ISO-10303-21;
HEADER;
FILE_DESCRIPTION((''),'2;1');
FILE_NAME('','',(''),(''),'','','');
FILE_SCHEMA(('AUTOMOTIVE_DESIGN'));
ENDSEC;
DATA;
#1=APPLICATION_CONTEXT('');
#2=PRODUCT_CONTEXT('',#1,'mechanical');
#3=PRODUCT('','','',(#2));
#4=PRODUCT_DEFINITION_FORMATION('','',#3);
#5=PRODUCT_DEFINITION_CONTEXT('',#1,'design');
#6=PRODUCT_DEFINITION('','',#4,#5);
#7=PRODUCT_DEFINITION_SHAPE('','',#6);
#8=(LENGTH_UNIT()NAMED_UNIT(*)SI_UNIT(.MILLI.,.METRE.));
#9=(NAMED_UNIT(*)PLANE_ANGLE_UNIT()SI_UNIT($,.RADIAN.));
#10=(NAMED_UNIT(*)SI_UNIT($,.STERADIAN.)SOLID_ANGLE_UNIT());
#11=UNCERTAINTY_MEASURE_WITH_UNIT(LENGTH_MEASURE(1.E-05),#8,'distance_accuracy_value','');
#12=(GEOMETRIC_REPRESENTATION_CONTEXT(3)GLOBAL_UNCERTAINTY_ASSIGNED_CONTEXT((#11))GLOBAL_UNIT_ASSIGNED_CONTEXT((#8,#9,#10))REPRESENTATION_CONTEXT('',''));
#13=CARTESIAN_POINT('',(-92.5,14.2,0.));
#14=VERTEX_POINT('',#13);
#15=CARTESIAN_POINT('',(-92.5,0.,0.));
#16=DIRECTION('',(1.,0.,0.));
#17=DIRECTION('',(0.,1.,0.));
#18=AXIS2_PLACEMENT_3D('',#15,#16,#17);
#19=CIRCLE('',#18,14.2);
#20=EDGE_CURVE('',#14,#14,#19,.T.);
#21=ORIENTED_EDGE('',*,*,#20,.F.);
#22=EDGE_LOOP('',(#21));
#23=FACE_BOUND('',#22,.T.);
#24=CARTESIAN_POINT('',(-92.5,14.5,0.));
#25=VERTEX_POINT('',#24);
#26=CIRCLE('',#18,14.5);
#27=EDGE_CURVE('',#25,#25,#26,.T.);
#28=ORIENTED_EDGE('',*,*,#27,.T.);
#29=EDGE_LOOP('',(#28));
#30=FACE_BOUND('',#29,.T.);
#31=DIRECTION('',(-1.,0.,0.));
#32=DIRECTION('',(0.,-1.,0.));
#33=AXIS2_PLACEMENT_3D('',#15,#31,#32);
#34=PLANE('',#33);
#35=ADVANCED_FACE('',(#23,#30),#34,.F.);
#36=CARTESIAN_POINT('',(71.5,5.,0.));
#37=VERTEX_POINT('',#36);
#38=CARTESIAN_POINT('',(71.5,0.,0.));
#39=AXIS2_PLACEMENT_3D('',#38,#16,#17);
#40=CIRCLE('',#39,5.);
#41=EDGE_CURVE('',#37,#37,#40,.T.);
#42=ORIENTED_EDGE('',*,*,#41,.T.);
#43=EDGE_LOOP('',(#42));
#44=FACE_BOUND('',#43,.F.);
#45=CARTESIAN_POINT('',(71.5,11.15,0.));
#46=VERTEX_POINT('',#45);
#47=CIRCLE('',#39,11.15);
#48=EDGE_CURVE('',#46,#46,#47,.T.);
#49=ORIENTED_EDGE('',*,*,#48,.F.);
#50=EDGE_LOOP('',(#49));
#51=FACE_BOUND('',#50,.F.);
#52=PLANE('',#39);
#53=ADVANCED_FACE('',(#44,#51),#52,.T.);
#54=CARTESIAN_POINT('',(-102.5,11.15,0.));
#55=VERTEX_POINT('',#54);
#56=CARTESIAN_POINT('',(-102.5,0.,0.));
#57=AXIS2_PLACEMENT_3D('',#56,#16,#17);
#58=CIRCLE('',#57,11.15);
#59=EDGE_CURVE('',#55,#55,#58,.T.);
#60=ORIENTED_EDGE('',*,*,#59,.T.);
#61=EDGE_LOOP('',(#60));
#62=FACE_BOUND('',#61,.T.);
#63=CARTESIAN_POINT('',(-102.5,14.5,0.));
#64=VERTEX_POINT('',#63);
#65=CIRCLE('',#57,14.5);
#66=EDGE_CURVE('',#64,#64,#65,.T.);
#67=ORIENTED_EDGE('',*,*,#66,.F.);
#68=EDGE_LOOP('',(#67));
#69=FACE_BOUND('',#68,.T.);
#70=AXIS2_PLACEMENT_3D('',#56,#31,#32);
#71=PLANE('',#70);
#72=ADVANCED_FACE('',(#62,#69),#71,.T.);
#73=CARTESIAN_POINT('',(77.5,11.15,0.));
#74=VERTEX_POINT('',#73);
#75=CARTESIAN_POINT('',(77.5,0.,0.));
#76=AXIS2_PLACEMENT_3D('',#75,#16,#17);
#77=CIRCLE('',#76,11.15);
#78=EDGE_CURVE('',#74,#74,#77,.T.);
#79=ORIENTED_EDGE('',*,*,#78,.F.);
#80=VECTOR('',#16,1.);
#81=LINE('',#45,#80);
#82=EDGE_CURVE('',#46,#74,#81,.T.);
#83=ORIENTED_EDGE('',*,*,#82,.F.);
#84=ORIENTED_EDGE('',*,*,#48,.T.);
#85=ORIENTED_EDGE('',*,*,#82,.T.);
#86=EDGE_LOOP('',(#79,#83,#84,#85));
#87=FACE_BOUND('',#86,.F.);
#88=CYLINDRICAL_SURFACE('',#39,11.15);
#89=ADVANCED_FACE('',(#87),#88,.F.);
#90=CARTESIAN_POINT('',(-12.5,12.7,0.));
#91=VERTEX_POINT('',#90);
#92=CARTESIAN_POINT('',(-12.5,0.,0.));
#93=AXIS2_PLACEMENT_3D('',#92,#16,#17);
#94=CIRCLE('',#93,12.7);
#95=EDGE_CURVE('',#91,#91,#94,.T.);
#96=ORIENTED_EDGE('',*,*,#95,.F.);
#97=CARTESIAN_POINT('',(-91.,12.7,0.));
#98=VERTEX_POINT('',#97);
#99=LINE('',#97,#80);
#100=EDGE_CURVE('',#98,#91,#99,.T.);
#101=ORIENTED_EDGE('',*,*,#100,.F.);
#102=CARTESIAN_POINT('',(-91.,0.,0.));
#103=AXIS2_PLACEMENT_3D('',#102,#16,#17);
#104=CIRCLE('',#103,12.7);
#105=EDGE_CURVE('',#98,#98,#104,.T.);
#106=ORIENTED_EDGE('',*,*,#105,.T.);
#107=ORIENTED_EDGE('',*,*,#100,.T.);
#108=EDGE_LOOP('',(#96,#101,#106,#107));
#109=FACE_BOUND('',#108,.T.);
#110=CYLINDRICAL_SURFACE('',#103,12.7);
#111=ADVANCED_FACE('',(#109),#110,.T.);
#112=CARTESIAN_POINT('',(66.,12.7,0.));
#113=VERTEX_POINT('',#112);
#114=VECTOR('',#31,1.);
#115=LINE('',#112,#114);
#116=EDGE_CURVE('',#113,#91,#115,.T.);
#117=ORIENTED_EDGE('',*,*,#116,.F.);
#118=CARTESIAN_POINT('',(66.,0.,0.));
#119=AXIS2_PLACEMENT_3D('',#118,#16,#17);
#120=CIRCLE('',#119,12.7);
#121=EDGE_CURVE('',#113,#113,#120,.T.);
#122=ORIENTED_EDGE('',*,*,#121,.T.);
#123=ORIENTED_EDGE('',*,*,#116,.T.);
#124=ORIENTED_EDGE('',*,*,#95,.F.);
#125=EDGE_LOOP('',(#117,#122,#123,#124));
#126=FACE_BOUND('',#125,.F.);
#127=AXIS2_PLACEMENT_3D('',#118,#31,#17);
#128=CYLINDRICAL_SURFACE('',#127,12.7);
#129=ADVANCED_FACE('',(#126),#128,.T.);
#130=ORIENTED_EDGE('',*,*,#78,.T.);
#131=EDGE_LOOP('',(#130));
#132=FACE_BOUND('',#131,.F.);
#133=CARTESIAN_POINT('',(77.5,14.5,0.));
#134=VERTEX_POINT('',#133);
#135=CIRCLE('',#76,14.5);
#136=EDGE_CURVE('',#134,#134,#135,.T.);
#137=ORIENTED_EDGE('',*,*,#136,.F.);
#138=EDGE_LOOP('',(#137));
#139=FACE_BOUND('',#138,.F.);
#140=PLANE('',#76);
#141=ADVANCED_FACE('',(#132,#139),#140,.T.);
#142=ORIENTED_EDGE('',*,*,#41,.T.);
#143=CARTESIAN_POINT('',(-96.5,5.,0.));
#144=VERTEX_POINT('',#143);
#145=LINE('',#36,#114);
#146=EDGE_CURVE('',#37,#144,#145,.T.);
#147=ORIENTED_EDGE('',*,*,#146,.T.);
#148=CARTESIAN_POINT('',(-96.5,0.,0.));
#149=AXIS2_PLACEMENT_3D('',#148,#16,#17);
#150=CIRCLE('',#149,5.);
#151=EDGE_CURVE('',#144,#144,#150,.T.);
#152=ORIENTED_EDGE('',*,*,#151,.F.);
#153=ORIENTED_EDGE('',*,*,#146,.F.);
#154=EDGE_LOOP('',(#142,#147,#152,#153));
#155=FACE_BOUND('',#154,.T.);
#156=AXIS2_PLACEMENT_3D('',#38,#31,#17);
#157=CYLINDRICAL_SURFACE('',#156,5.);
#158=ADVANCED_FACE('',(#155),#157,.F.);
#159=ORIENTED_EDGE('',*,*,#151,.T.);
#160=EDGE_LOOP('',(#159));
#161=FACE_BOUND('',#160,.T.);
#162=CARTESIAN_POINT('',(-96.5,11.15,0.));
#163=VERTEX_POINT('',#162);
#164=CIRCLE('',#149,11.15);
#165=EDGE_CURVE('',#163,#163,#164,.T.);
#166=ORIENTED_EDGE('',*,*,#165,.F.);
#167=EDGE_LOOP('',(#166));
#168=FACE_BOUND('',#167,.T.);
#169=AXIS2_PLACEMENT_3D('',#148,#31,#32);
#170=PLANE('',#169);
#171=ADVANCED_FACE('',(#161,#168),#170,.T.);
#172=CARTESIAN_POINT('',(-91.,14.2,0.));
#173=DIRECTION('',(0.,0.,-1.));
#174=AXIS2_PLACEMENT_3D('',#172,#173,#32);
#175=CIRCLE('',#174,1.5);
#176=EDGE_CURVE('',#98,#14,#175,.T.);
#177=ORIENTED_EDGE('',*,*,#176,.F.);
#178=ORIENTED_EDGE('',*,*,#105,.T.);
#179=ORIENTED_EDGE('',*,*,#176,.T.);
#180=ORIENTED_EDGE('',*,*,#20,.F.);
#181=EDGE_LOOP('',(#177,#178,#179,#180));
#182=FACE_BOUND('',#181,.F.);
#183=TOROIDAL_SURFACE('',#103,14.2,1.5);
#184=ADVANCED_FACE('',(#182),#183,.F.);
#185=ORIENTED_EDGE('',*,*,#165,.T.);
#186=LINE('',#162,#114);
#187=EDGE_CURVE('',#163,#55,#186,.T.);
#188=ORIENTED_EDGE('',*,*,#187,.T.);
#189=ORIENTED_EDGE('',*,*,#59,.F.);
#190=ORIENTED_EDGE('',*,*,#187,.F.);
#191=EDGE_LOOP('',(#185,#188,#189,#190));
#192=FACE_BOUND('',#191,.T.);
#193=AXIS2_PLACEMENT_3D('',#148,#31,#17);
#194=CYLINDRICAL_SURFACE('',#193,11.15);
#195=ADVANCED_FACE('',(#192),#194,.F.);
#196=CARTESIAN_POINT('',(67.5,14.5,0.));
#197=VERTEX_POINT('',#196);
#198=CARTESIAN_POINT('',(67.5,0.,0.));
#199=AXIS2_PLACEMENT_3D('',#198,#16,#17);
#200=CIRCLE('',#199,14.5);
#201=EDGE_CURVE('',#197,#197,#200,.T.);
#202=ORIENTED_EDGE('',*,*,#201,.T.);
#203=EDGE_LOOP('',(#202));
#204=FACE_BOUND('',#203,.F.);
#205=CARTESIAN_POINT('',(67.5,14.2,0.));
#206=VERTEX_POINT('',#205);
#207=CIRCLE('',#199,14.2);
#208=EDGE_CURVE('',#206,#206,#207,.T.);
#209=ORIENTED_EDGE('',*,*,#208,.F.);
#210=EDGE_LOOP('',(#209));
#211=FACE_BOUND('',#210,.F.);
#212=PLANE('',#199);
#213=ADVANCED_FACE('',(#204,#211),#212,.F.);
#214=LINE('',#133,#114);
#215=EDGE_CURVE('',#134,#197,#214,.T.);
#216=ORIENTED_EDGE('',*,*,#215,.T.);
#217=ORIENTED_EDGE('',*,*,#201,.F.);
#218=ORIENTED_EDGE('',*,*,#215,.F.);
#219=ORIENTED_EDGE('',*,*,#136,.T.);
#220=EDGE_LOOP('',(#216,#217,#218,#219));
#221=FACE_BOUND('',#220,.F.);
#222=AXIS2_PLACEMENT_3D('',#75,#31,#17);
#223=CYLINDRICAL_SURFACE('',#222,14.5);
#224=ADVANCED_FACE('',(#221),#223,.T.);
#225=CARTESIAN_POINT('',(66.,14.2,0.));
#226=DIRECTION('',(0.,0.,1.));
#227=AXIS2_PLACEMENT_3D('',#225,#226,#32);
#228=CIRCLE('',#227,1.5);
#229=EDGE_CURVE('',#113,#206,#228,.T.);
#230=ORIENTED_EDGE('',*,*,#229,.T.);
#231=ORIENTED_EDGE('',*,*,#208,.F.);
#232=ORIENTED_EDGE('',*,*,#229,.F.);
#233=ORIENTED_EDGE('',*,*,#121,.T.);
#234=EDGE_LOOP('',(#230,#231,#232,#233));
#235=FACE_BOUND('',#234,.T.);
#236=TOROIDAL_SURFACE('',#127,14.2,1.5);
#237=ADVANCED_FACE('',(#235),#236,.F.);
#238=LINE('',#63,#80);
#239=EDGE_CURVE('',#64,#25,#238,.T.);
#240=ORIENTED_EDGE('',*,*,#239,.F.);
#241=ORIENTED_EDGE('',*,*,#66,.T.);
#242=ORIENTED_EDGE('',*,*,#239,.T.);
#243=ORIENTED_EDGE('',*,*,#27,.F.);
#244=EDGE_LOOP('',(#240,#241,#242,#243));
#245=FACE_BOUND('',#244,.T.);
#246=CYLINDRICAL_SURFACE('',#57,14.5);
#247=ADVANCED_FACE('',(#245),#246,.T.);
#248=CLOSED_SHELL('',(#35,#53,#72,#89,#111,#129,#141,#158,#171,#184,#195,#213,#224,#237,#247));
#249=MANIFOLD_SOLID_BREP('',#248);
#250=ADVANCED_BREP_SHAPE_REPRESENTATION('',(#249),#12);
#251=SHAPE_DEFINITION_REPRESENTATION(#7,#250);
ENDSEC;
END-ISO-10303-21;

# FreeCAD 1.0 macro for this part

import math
import FreeCAD as App
import Part
import Sketcher
Q = App.Units.Quantity

doc = App.newDocument("Part")
body = doc.addObject("PartDesign::Body", "Body")

# Sketch on XY plane
sketch1 = doc.addObject("Sketcher::SketchObject", "Sketch")
body.addObject(sketch1)
sketch1.AttachmentSupport = (doc.XY_Plane, [""])
sketch1.MapMode = "FlatFace"
sketch1.addGeometry([
    Part.LineSegment(App.Vector(-12.5, 5, 0), App.Vector(71.5, 5, 0)),  # 0
    Part.LineSegment(App.Vector(71.5, 5, 0), App.Vector(71.5, 11.15, 0)),  # 1
    Part.LineSegment(App.Vector(71.5, 11.15, 0), App.Vector(77.5, 11.15, 0)),  # 2
    Part.LineSegment(App.Vector(77.5, 11.15, 0), App.Vector(77.5, 14.5, 0)),  # 3
    Part.LineSegment(App.Vector(77.5, 14.5, 0), App.Vector(67.5, 14.5, 0)),  # 4
    Part.LineSegment(App.Vector(67.5, 14.5, 0), App.Vector(67.5, 14.2, 0)),  # 5
    Part.ArcOfCircle(Part.Circle(App.Vector(66, 14.2, 0), App.Vector(0, 0, 1), 1.5), math.radians(-90), math.radians(0)),  # 6
    Part.LineSegment(App.Vector(66, 12.7, 0), App.Vector(-12.5, 12.7, 0)),  # 7
    Part.LineSegment(App.Vector(-12.5, 12.7, 0), App.Vector(-12.5, 5, 0)),  # 8
], False)
sketch1.addConstraint([
    Sketcher.Constraint("Coincident", 0, 2, 1, 1),
    Sketcher.Constraint("Coincident", 1, 2, 2, 1),
    Sketcher.Constraint("Coincident", 2, 2, 3, 1),
    Sketcher.Constraint("Coincident", 3, 2, 4, 1),
    Sketcher.Constraint("Coincident", 4, 2, 5, 1),
    Sketcher.Constraint("Tangent", 5, 2, 6, 2),
    Sketcher.Constraint("Tangent", 6, 1, 7, 1),
    Sketcher.Constraint("Coincident", 7, 2, 8, 1),
    Sketcher.Constraint("Coincident", 8, 2, 0, 1),
    Sketcher.Constraint("Horizontal", 0),
    Sketcher.Constraint("Vertical", 1),
    Sketcher.Constraint("Horizontal", 2),
    Sketcher.Constraint("Vertical", 3),
    Sketcher.Constraint("Horizontal", 4),
    Sketcher.Constraint("Vertical", 5),
    Sketcher.Constraint("Horizontal", 7),
    Sketcher.Constraint("Vertical", 8),
    Sketcher.Constraint("Radius", 6, Q("1.5 mm")),
    Sketcher.Constraint("DistanceX", 2, 1, 2, 2, Q("6 mm")),
    Sketcher.Constraint("DistanceX", 4, 2, 4, 1, Q("10 mm")),
    Sketcher.Constraint("DistanceY", -1, 1, 0, 2, Q("5 mm")),
    Sketcher.Constraint("DistanceX", 7, 2, 5, 2, Q("80 mm")),
    Sketcher.Constraint("DistanceY", -1, 1, 3, 2, Q("14.5 mm")),
    Sketcher.Constraint("DistanceY", -1, 1, 6, 1, Q("12.7 mm")),
    Sketcher.Constraint("DistanceY", -1, 1, 1, 2, Q("11.15 mm")),
    Sketcher.Constraint("DistanceX", -1, 1, 6, 3, Q("66 mm")),
])
revolution = doc.addObject("PartDesign::Revolution", "Revolution")
body.addObject(revolution)
revolution.Profile = sketch1
revolution.ReferenceAxis = (sketch1, ["H_Axis"])
revolution.Angle = 360
doc.recompute()

datumplane = doc.addObject("PartDesign::Plane", "DatumPlane")
body.addObject(datumplane)
datumplane.AttachmentSupport = (doc.YZ_Plane, [""])
datumplane.MapMode = "FlatFace"
datumplane.AttachmentOffset = App.Placement(App.Vector(0, 0, -12.5), App.Rotation())
mirrored = doc.addObject("PartDesign::Mirrored", "Mirrored")
body.addObject(mirrored)
mirrored.Originals = [revolution]
mirrored.MirrorPlane = (datumplane, [""])
body.Tip = mirrored

doc.recompute()
